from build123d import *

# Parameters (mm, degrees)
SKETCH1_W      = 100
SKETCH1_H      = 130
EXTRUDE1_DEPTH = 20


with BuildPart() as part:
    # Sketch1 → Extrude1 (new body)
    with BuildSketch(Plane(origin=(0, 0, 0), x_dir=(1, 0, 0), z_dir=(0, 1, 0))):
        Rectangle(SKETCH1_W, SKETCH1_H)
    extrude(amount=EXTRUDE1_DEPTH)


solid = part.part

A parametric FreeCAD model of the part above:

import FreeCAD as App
import Part
import Sketcher
from FreeCAD import Vector
Q = App.Units.Quantity

doc = App.newDocument("Part")
params = doc.addObject("Spreadsheet::Sheet", "Params")
for row, (alias, value) in enumerate([
    ("sketch1_width", "100 mm"),
    ("sketch1_height", "130 mm"),
    ("pad1_length", "20 mm"),
], start=1):
    params.set(f"A{row}", alias)
    params.set(f"B{row}", "=" + value)
    params.setAlias(f"B{row}", alias)

body = doc.addObject("PartDesign::Body", "Body")

sketch1 = body.newObject("Sketcher::SketchObject", "Sketch")
sketch1.AttachmentSupport = (doc.getObject("XZ_Plane"), [""])
sketch1.MapMode = "FlatFace"
sketch1.addGeometry([
    Part.LineSegment(Vector(-50, -65, 0), Vector(-50, 65, 0)),
    Part.LineSegment(Vector(-50, 65, 0), Vector(50, 65, 0)),
    Part.LineSegment(Vector(50, 65, 0), Vector(50, -65, 0)),
    Part.LineSegment(Vector(50, -65, 0), Vector(-50, -65, 0)),
], False)
sketch1.addConstraint([
    Sketcher.Constraint("Coincident", 0, 2, 1, 1),
    Sketcher.Constraint("Coincident", 1, 2, 2, 1),
    Sketcher.Constraint("Coincident", 2, 2, 3, 1),
    Sketcher.Constraint("Coincident", 3, 2, 0, 1),
    Sketcher.Constraint("Vertical", 0),
    Sketcher.Constraint("Horizontal", 1),
    Sketcher.Constraint("Vertical", 2),
    Sketcher.Constraint("Horizontal", 3),
    Sketcher.Constraint("Symmetric", 0, 2, 2, 2, -1, 1),
    Sketcher.Constraint("DistanceX", 1, 1, 1, 2, Q("100 mm")),
    Sketcher.Constraint("DistanceY", 0, 1, 0, 2, Q("130 mm")),
])
sketch1.setExpression("Constraints[9]", "Params.sketch1_width")
sketch1.setExpression("Constraints[10]", "Params.sketch1_height")
pad1 = body.newObject("PartDesign::Pad", "Pad")
pad1.Profile = sketch1
pad1.setExpression("Length", "Params.pad1_length")
pad1.Reversed = True

doc.recompute()
